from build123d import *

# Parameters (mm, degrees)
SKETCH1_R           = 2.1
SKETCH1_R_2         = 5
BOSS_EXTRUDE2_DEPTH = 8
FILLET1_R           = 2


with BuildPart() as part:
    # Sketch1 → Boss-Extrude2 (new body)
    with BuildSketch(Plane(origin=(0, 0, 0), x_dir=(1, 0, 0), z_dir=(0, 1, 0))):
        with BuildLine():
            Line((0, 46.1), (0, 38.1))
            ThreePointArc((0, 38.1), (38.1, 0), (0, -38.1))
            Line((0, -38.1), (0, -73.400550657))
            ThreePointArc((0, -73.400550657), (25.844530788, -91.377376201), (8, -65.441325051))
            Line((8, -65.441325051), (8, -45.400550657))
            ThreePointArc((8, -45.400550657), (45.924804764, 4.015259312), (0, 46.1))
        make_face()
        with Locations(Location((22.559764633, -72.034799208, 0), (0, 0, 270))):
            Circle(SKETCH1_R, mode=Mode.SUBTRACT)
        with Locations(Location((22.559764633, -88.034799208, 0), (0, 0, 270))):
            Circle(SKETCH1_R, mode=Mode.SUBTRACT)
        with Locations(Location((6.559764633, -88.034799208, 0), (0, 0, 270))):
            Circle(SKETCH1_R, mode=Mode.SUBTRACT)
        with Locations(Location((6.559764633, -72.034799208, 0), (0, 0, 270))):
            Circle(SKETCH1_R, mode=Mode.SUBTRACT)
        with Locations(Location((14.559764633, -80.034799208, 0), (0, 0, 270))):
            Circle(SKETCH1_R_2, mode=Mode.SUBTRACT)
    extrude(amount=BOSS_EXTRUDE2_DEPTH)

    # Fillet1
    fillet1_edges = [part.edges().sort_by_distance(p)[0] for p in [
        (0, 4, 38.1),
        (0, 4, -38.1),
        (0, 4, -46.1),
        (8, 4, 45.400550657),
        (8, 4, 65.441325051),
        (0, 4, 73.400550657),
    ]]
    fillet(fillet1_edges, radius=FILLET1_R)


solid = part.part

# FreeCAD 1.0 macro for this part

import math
import FreeCAD as App
import Part
import Sketcher


def edges_at(feature, points):
    """Names of the edges that pass closest to the given points."""
    edges = feature.Shape.Edges
    near = lambda p: min(range(len(edges)), key=lambda i: edges[i].distToShape(Part.Vertex(*p))[0])
    return sorted({f"Edge{near(p) + 1}" for p in points})

doc = App.newDocument("Part")
body = doc.addObject("PartDesign::Body", "Body")

sketch1 = body.newObject("Sketcher::SketchObject", "Sketch")
sketch1.AttachmentSupport = (doc.getObject("XZ_Plane"), [""])
sketch1.MapMode = "FlatFace"
sketch1.addGeometry(Part.LineSegment(App.Vector(0, -46.1, 0), App.Vector(0, -38.1, 0)), False)
sketch1.addGeometry(Part.ArcOfCircle(Part.Circle(App.Vector(0, 0, 0), App.Vector(0, 0, 1), 38.1), math.radians(-90), math.radians(90)), False)
sketch1.addGeometry(Part.LineSegment(App.Vector(0, 38.1, 0), App.Vector(0, 73.4, 0)), False)
sketch1.addGeometry(Part.ArcOfCircle(Part.Circle(App.Vector(14.6, 80, 0), App.Vector(0, 0, 1), 16), math.radians(-114), math.radians(204)), False)
sketch1.addGeometry(Part.LineSegment(App.Vector(8, 65.4, 0), App.Vector(8, 45.4, 0)), False)
sketch1.addGeometry(Part.ArcOfCircle(Part.Circle(App.Vector(0, 0, 0), App.Vector(0, 0, 1), 46.1), math.radians(-90), math.radians(80)), False)
sketch1.addGeometry(Part.Circle(App.Vector(6.6, 88, 0), App.Vector(0, 0, 1), 2.1), False)
sketch1.addGeometry(Part.Circle(App.Vector(22.6, 88, 0), App.Vector(0, 0, 1), 2.1), False)
sketch1.addGeometry(Part.Circle(App.Vector(6.6, 72, 0), App.Vector(0, 0, 1), 2.1), False)
sketch1.addGeometry(Part.Circle(App.Vector(14.6, 80, 0), App.Vector(0, 0, 1), 5), False)
sketch1.addGeometry(Part.Circle(App.Vector(22.6, 72, 0), App.Vector(0, 0, 1), 2.1), False)
sketch1.addConstraint(Sketcher.Constraint("Coincident", 0, 2, 1, 1))
sketch1.addConstraint(Sketcher.Constraint("Coincident", 1, 2, 2, 1))
sketch1.addConstraint(Sketcher.Constraint("Coincident", 2, 2, 3, 2))
sketch1.addConstraint(Sketcher.Constraint("Coincident", 3, 1, 4, 1))
sketch1.addConstraint(Sketcher.Constraint("Coincident", 4, 2, 5, 2))
sketch1.addConstraint(Sketcher.Constraint("Coincident", 5, 1, 0, 1))
sketch1.addConstraint(Sketcher.Constraint("Vertical", 0))
sketch1.addConstraint(Sketcher.Constraint("Vertical", 2))
sketch1.addConstraint(Sketcher.Constraint("Vertical", 4))
sketch1.addConstraint(Sketcher.Constraint("Coincident", 1, 3, -1, 1))
sketch1.addConstraint(Sketcher.Constraint("Coincident", 5, 3, -1, 1))
sketch1.addConstraint(Sketcher.Constraint("Coincident", 9, 3, 3, 3))
sketch1.addConstraint(Sketcher.Constraint("Equal", 6, 7))
sketch1.addConstraint(Sketcher.Constraint("Equal", 7, 8))
sketch1.addConstraint(Sketcher.Constraint("Equal", 8, 10))
sketch1.addConstraint(Sketcher.Constraint("PointOnObject", 0, 2, -2))
sketch1.addConstraint(Sketcher.Constraint("PointOnObject", 1, 2, -2))
sketch1.addConstraint(Sketcher.Constraint("Horizontal", 6, 3, 7, 3))
sketch1.addConstraint(Sketcher.Constraint("Horizontal", 8, 3, 10, 3))
sketch1.addConstraint(Sketcher.Constraint("Vertical", 6, 3, 8, 3))
sketch1.addConstraint(Sketcher.Constraint("Vertical", 7, 3, 10, 3))
sketch1.addConstraint(Sketcher.Constraint("Diameter", 9, 10.0))
sketch1.addConstraint(Sketcher.Constraint("Radius", 3, 16.0))
sketch1.addConstraint(Sketcher.Constraint("Diameter", 6, 4.2))
sketch1.addConstraint(Sketcher.Constraint("Radius", 1, 38.1))
sketch1.addConstraint(Sketcher.Constraint("Radius", 5, 46.1))
sketch1.addConstraint(Sketcher.Constraint("DistanceX", -1, 1, 3, 1, 8.0))
sketch1.addConstraint(Sketcher.Constraint("DistanceX", 6, 3, 3, 3, 8.0))
sketch1.addConstraint(Sketcher.Constraint("DistanceY", 3, 3, 6, 3, 8.0))
sketch1.addConstraint(Sketcher.Constraint("DistanceX", 3, 3, 7, 3, 8.0))
sketch1.addConstraint(Sketcher.Constraint("DistanceY", 8, 3, 3, 3, 8.0))
sketch1.addConstraint(Sketcher.Constraint("DistanceY", 4, 2, 2, 2, 28.0))
sketch1.addConstraint(Sketcher.Constraint("DistanceY", -1, 1, 3, 3, 80.034799))
pad1 = body.newObject("PartDesign::Pad", "Pad")
pad1.Profile = sketch1
pad1.Length = 8
pad1.Reversed = True
doc.recompute()

fillet = body.newObject("PartDesign::Fillet", "Fillet")
fillet.Base = (pad1, edges_at(pad1, [
    (0, 4, 38.1),
    (0, 4, -38.1),
    (0, 4, -46.1),
    (8, 4, 45.401),
    (8, 4, 65.441),
    (0, 4, 73.401),
]))
fillet.Radius = 2

doc.recompute()
